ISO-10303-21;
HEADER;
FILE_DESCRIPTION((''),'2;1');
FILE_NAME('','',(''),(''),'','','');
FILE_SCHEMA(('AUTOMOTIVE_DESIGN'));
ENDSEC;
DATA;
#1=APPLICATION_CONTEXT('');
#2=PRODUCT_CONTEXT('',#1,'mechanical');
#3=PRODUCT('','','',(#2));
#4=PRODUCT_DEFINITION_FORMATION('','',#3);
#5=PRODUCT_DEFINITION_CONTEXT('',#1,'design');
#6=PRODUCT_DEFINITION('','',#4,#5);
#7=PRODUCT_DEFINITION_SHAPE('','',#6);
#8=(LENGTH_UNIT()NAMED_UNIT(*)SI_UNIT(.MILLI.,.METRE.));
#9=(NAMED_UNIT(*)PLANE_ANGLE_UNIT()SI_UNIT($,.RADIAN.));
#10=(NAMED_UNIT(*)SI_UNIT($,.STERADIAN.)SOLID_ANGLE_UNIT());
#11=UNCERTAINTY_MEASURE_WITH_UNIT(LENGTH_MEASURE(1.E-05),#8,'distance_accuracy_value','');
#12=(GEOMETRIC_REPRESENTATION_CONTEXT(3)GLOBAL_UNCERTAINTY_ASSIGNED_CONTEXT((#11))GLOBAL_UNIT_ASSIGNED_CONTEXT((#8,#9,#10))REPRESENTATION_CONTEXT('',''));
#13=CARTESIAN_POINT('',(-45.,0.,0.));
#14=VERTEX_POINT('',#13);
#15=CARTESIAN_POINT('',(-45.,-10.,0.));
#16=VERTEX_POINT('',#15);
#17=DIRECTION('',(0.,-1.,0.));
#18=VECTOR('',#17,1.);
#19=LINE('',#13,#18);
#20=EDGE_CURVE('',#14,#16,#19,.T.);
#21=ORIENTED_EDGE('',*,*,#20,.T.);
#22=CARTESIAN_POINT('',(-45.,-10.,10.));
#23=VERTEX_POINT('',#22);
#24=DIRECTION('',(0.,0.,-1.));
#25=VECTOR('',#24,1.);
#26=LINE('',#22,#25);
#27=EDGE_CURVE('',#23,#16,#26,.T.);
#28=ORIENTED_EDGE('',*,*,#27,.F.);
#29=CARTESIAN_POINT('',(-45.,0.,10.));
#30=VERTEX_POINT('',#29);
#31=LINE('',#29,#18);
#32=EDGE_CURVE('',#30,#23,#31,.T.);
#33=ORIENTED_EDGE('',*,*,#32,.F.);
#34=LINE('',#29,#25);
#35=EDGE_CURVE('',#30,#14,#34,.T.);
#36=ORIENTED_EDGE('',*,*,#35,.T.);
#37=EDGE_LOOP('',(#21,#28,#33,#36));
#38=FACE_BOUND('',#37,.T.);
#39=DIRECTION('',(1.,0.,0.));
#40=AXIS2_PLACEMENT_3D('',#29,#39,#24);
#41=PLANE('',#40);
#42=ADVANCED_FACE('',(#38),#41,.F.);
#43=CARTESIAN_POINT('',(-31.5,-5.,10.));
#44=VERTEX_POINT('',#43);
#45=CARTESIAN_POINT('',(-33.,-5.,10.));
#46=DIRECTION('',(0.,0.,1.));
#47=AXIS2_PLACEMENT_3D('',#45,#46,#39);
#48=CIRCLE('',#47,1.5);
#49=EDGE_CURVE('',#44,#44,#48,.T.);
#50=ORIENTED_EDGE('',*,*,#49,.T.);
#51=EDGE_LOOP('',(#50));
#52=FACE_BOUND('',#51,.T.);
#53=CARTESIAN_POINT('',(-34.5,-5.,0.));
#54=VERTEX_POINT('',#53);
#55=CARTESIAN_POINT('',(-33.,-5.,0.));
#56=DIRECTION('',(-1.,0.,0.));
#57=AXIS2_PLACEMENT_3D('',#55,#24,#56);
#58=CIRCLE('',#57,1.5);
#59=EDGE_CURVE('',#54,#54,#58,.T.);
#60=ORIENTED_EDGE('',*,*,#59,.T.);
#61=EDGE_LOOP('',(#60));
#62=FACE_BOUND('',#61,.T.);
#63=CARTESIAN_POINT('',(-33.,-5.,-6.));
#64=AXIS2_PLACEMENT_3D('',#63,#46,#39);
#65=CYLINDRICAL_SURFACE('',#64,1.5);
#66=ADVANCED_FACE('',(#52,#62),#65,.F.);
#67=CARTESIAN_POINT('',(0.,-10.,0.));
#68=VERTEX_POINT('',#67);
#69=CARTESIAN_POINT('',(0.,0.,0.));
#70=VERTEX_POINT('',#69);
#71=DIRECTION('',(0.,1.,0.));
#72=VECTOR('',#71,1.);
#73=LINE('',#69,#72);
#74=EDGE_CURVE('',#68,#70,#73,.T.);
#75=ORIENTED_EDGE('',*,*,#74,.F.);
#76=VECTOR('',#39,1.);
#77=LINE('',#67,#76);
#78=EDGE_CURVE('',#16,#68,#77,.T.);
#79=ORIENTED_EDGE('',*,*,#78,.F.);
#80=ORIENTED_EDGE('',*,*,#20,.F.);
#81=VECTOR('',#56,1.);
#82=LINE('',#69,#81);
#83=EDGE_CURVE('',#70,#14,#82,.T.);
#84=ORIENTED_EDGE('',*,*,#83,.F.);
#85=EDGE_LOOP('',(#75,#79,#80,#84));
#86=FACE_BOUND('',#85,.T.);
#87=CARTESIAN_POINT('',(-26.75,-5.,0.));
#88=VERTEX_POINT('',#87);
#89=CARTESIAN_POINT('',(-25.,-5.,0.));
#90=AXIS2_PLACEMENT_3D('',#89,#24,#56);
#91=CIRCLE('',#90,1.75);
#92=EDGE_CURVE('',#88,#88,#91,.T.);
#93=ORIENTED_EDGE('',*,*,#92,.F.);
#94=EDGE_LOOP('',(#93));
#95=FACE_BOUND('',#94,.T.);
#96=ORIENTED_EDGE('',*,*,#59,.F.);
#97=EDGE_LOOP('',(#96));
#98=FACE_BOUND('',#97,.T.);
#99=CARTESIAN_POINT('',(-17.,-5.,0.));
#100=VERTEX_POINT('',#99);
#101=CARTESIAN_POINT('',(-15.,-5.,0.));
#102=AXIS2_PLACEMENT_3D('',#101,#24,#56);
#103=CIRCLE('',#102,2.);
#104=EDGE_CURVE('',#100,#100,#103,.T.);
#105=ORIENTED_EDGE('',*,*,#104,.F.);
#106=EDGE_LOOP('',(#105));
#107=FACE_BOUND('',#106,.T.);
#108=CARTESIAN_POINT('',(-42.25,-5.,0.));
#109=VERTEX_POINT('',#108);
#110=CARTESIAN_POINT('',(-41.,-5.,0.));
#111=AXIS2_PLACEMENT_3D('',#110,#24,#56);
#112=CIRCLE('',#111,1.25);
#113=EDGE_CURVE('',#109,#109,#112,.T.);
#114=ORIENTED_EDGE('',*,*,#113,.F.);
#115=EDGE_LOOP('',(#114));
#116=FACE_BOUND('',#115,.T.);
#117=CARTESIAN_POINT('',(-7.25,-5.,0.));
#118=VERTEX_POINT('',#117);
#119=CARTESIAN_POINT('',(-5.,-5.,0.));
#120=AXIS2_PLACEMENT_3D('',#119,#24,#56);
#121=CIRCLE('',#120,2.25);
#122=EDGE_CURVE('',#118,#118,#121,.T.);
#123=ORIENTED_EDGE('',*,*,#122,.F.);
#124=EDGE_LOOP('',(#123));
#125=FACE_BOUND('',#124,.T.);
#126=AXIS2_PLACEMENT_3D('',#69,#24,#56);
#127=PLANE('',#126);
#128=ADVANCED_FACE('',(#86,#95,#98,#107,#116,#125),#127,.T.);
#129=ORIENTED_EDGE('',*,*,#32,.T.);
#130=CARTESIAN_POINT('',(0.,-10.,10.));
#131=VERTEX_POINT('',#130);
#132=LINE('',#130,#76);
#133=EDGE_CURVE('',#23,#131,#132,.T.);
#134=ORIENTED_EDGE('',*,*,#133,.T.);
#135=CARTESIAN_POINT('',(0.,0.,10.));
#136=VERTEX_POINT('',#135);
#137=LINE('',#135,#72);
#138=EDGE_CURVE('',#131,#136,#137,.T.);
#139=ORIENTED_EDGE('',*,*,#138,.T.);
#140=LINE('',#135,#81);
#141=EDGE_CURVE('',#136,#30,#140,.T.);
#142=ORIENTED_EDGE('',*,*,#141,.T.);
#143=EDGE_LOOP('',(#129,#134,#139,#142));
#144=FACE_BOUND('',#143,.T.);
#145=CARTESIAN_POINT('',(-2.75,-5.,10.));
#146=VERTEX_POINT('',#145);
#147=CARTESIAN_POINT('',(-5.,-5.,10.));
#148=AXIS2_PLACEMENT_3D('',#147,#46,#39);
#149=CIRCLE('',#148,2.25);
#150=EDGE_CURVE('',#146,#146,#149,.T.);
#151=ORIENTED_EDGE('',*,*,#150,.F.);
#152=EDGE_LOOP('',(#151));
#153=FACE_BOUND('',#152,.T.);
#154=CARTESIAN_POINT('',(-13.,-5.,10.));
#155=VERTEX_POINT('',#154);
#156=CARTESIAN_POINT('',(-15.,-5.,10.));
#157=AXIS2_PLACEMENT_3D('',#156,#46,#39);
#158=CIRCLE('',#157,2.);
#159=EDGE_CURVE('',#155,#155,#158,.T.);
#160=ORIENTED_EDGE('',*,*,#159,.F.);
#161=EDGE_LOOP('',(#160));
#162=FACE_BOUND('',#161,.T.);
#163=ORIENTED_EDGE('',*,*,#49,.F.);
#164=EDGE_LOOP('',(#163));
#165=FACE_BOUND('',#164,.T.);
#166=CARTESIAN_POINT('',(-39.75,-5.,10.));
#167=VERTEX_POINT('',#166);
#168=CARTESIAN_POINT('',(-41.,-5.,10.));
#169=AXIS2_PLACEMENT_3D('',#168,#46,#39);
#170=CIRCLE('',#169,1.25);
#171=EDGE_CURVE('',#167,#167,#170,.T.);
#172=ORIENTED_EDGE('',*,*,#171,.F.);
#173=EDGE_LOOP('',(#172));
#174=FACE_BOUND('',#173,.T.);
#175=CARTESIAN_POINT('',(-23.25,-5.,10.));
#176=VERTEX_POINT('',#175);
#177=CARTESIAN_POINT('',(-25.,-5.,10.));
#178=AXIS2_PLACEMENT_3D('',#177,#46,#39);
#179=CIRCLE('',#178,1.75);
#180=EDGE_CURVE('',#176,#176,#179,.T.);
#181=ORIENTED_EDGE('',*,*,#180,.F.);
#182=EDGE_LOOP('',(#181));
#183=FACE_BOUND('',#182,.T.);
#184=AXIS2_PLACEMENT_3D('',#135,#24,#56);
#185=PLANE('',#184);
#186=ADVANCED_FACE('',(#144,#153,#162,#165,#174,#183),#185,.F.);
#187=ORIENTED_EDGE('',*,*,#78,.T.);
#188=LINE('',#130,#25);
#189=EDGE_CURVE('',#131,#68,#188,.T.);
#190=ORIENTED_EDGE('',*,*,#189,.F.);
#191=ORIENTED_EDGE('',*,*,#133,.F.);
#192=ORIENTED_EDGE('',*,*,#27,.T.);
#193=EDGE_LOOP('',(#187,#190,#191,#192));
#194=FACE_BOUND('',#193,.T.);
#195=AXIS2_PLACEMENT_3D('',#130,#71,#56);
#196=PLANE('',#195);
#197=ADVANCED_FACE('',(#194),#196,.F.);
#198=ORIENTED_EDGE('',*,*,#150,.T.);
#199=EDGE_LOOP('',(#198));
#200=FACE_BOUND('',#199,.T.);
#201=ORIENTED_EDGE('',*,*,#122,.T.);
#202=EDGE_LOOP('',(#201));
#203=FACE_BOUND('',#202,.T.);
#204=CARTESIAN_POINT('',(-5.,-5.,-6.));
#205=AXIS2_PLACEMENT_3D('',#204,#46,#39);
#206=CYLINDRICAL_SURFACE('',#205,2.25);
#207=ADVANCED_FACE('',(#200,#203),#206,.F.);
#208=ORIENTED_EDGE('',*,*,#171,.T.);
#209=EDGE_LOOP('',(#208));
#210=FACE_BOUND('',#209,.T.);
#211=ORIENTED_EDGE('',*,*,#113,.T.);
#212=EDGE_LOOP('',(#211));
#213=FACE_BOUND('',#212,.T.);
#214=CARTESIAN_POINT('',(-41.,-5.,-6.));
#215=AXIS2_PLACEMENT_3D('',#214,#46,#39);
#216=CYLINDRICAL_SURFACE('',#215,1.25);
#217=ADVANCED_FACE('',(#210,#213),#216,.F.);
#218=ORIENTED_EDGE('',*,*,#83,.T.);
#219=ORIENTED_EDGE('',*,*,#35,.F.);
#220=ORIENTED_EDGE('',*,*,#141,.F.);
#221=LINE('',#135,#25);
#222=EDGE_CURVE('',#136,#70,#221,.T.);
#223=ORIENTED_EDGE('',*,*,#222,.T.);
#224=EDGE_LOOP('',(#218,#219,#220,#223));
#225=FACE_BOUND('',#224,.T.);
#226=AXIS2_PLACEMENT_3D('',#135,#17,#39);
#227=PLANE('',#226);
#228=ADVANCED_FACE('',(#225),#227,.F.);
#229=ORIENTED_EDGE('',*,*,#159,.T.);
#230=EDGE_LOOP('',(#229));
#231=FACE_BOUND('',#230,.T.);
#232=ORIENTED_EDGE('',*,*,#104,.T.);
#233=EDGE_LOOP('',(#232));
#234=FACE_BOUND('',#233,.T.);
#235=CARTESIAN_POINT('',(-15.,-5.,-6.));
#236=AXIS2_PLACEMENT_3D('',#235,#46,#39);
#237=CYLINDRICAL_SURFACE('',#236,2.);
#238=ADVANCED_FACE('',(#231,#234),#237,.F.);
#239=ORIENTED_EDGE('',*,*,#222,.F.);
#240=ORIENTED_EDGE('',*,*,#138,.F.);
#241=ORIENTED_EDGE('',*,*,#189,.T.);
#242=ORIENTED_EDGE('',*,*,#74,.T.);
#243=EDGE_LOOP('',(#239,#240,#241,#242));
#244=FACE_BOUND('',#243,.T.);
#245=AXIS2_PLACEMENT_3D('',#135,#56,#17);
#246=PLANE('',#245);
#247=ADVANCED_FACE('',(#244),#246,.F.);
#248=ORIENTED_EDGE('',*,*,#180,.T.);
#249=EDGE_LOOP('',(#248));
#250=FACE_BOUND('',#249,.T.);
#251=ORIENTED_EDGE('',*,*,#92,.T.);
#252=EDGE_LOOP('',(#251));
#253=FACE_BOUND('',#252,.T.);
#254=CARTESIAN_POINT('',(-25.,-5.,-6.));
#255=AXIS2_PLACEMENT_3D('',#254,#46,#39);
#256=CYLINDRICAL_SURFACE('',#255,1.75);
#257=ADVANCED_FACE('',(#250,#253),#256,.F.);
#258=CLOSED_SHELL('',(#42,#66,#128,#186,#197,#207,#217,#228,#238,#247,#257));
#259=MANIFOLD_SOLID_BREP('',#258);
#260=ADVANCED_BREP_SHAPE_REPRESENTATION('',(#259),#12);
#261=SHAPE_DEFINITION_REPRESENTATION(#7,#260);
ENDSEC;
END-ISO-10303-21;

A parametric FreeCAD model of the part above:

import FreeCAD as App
import Part
import Sketcher
from FreeCAD import Vector
Q = App.Units.Quantity

doc = App.newDocument("Part")
body = doc.addObject("PartDesign::Body", "Body")

sketch1 = body.newObject("Sketcher::SketchObject", "Sketch")
sketch1.AttachmentSupport = (doc.getObject("XY_Plane"), [""])
sketch1.MapMode = "FlatFace"
sketch1.addGeometry(Part.LineSegment(Vector(-45, 0, 0), Vector(-45, -10, 0)), False)
sketch1.addGeometry(Part.LineSegment(Vector(-45, -10, 0), Vector(0, -10, 0)), False)
sketch1.addGeometry(Part.LineSegment(Vector(0, -10, 0), Vector(0, 0, 0)), False)
sketch1.addGeometry(Part.LineSegment(Vector(0, 0, 0), Vector(-45, 0, 0)), False)
sketch1.addConstraint(Sketcher.Constraint("Coincident", 0, 2, 1, 1))
sketch1.addConstraint(Sketcher.Constraint("Coincident", 1, 2, 2, 1))
sketch1.addConstraint(Sketcher.Constraint("Coincident", 2, 2, 3, 1))
sketch1.addConstraint(Sketcher.Constraint("Coincident", 3, 2, 0, 1))
sketch1.addConstraint(Sketcher.Constraint("Vertical", 0))
sketch1.addConstraint(Sketcher.Constraint("Horizontal", 1))
sketch1.addConstraint(Sketcher.Constraint("Vertical", 2))
sketch1.addConstraint(Sketcher.Constraint("Horizontal", 3))
sketch1.addConstraint(Sketcher.Constraint("Coincident", 2, 2, -1, 1))
sketch1.addConstraint(Sketcher.Constraint("DistanceX", 1, 1, 1, 2, Q("45 mm")))
sketch1.addConstraint(Sketcher.Constraint("DistanceY", 0, 2, 0, 1, Q("10 mm")))
pad1 = body.newObject("PartDesign::Pad", "Pad")
pad1.Profile = sketch1
pad1.Length = 10

sketch2 = body.newObject("Sketcher::SketchObject", "Sketch001")
sketch2.AttachmentSupport = (doc.getObject("XY_Plane"), [""])
sketch2.MapMode = "FlatFace"
sketch2.AttachmentOffset = App.Placement(Vector(0, 0, 10), App.Rotation())
sketch2.addGeometry(Part.Circle(Vector(-41, -5, 0), Vector(0, 0, 1), 1.2), False)
sketch2.addGeometry(Part.Circle(Vector(-33, -5, 0), Vector(0, 0, 1), 1.5), False)
sketch2.addGeometry(Part.Circle(Vector(-25, -5, 0), Vector(0, 0, 1), 1.8), False)
sketch2.addGeometry(Part.Circle(Vector(-15, -5, 0), Vector(0, 0, 1), 2), False)
sketch2.addGeometry(Part.Circle(Vector(-5, -5, 0), Vector(0, 0, 1), 2.2), False)
sketch2.addConstraint(Sketcher.Constraint("Horizontal", 0, 3, 1, 3))
sketch2.addConstraint(Sketcher.Constraint("Horizontal", 1, 3, 2, 3))
sketch2.addConstraint(Sketcher.Constraint("Horizontal", 2, 3, 3, 3))
sketch2.addConstraint(Sketcher.Constraint("Horizontal", 3, 3, 4, 3))
sketch2.addConstraint(Sketcher.Constraint("Diameter", 1, Q("3 mm")))
sketch2.addConstraint(Sketcher.Constraint("Diameter", 3, Q("4 mm")))
sketch2.addConstraint(Sketcher.Constraint("Diameter", 0, Q("2.5 mm")))
sketch2.addConstraint(Sketcher.Constraint("Diameter", 2, Q("3.5 mm")))
sketch2.addConstraint(Sketcher.Constraint("Diameter", 4, Q("4.5 mm")))
sketch2.addConstraint(Sketcher.Constraint("DistanceX", 0, 3, -1, 1, Q("41 mm")))
sketch2.addConstraint(Sketcher.Constraint("DistanceY", 0, 3, -1, 1, Q("5 mm")))
sketch2.addConstraint(Sketcher.Constraint("DistanceX", 1, 3, -1, 1, Q("33 mm")))
sketch2.addConstraint(Sketcher.Constraint("DistanceX", 2, 3, -1, 1, Q("25 mm")))
sketch2.addConstraint(Sketcher.Constraint("DistanceX", 3, 3, -1, 1, Q("15 mm")))
sketch2.addConstraint(Sketcher.Constraint("DistanceX", 4, 3, -1, 1, Q("5 mm")))
pocket1 = body.newObject("PartDesign::Pocket", "Pocket")
pocket1.Profile = sketch2
pocket1.Length = 16

doc.recompute()
